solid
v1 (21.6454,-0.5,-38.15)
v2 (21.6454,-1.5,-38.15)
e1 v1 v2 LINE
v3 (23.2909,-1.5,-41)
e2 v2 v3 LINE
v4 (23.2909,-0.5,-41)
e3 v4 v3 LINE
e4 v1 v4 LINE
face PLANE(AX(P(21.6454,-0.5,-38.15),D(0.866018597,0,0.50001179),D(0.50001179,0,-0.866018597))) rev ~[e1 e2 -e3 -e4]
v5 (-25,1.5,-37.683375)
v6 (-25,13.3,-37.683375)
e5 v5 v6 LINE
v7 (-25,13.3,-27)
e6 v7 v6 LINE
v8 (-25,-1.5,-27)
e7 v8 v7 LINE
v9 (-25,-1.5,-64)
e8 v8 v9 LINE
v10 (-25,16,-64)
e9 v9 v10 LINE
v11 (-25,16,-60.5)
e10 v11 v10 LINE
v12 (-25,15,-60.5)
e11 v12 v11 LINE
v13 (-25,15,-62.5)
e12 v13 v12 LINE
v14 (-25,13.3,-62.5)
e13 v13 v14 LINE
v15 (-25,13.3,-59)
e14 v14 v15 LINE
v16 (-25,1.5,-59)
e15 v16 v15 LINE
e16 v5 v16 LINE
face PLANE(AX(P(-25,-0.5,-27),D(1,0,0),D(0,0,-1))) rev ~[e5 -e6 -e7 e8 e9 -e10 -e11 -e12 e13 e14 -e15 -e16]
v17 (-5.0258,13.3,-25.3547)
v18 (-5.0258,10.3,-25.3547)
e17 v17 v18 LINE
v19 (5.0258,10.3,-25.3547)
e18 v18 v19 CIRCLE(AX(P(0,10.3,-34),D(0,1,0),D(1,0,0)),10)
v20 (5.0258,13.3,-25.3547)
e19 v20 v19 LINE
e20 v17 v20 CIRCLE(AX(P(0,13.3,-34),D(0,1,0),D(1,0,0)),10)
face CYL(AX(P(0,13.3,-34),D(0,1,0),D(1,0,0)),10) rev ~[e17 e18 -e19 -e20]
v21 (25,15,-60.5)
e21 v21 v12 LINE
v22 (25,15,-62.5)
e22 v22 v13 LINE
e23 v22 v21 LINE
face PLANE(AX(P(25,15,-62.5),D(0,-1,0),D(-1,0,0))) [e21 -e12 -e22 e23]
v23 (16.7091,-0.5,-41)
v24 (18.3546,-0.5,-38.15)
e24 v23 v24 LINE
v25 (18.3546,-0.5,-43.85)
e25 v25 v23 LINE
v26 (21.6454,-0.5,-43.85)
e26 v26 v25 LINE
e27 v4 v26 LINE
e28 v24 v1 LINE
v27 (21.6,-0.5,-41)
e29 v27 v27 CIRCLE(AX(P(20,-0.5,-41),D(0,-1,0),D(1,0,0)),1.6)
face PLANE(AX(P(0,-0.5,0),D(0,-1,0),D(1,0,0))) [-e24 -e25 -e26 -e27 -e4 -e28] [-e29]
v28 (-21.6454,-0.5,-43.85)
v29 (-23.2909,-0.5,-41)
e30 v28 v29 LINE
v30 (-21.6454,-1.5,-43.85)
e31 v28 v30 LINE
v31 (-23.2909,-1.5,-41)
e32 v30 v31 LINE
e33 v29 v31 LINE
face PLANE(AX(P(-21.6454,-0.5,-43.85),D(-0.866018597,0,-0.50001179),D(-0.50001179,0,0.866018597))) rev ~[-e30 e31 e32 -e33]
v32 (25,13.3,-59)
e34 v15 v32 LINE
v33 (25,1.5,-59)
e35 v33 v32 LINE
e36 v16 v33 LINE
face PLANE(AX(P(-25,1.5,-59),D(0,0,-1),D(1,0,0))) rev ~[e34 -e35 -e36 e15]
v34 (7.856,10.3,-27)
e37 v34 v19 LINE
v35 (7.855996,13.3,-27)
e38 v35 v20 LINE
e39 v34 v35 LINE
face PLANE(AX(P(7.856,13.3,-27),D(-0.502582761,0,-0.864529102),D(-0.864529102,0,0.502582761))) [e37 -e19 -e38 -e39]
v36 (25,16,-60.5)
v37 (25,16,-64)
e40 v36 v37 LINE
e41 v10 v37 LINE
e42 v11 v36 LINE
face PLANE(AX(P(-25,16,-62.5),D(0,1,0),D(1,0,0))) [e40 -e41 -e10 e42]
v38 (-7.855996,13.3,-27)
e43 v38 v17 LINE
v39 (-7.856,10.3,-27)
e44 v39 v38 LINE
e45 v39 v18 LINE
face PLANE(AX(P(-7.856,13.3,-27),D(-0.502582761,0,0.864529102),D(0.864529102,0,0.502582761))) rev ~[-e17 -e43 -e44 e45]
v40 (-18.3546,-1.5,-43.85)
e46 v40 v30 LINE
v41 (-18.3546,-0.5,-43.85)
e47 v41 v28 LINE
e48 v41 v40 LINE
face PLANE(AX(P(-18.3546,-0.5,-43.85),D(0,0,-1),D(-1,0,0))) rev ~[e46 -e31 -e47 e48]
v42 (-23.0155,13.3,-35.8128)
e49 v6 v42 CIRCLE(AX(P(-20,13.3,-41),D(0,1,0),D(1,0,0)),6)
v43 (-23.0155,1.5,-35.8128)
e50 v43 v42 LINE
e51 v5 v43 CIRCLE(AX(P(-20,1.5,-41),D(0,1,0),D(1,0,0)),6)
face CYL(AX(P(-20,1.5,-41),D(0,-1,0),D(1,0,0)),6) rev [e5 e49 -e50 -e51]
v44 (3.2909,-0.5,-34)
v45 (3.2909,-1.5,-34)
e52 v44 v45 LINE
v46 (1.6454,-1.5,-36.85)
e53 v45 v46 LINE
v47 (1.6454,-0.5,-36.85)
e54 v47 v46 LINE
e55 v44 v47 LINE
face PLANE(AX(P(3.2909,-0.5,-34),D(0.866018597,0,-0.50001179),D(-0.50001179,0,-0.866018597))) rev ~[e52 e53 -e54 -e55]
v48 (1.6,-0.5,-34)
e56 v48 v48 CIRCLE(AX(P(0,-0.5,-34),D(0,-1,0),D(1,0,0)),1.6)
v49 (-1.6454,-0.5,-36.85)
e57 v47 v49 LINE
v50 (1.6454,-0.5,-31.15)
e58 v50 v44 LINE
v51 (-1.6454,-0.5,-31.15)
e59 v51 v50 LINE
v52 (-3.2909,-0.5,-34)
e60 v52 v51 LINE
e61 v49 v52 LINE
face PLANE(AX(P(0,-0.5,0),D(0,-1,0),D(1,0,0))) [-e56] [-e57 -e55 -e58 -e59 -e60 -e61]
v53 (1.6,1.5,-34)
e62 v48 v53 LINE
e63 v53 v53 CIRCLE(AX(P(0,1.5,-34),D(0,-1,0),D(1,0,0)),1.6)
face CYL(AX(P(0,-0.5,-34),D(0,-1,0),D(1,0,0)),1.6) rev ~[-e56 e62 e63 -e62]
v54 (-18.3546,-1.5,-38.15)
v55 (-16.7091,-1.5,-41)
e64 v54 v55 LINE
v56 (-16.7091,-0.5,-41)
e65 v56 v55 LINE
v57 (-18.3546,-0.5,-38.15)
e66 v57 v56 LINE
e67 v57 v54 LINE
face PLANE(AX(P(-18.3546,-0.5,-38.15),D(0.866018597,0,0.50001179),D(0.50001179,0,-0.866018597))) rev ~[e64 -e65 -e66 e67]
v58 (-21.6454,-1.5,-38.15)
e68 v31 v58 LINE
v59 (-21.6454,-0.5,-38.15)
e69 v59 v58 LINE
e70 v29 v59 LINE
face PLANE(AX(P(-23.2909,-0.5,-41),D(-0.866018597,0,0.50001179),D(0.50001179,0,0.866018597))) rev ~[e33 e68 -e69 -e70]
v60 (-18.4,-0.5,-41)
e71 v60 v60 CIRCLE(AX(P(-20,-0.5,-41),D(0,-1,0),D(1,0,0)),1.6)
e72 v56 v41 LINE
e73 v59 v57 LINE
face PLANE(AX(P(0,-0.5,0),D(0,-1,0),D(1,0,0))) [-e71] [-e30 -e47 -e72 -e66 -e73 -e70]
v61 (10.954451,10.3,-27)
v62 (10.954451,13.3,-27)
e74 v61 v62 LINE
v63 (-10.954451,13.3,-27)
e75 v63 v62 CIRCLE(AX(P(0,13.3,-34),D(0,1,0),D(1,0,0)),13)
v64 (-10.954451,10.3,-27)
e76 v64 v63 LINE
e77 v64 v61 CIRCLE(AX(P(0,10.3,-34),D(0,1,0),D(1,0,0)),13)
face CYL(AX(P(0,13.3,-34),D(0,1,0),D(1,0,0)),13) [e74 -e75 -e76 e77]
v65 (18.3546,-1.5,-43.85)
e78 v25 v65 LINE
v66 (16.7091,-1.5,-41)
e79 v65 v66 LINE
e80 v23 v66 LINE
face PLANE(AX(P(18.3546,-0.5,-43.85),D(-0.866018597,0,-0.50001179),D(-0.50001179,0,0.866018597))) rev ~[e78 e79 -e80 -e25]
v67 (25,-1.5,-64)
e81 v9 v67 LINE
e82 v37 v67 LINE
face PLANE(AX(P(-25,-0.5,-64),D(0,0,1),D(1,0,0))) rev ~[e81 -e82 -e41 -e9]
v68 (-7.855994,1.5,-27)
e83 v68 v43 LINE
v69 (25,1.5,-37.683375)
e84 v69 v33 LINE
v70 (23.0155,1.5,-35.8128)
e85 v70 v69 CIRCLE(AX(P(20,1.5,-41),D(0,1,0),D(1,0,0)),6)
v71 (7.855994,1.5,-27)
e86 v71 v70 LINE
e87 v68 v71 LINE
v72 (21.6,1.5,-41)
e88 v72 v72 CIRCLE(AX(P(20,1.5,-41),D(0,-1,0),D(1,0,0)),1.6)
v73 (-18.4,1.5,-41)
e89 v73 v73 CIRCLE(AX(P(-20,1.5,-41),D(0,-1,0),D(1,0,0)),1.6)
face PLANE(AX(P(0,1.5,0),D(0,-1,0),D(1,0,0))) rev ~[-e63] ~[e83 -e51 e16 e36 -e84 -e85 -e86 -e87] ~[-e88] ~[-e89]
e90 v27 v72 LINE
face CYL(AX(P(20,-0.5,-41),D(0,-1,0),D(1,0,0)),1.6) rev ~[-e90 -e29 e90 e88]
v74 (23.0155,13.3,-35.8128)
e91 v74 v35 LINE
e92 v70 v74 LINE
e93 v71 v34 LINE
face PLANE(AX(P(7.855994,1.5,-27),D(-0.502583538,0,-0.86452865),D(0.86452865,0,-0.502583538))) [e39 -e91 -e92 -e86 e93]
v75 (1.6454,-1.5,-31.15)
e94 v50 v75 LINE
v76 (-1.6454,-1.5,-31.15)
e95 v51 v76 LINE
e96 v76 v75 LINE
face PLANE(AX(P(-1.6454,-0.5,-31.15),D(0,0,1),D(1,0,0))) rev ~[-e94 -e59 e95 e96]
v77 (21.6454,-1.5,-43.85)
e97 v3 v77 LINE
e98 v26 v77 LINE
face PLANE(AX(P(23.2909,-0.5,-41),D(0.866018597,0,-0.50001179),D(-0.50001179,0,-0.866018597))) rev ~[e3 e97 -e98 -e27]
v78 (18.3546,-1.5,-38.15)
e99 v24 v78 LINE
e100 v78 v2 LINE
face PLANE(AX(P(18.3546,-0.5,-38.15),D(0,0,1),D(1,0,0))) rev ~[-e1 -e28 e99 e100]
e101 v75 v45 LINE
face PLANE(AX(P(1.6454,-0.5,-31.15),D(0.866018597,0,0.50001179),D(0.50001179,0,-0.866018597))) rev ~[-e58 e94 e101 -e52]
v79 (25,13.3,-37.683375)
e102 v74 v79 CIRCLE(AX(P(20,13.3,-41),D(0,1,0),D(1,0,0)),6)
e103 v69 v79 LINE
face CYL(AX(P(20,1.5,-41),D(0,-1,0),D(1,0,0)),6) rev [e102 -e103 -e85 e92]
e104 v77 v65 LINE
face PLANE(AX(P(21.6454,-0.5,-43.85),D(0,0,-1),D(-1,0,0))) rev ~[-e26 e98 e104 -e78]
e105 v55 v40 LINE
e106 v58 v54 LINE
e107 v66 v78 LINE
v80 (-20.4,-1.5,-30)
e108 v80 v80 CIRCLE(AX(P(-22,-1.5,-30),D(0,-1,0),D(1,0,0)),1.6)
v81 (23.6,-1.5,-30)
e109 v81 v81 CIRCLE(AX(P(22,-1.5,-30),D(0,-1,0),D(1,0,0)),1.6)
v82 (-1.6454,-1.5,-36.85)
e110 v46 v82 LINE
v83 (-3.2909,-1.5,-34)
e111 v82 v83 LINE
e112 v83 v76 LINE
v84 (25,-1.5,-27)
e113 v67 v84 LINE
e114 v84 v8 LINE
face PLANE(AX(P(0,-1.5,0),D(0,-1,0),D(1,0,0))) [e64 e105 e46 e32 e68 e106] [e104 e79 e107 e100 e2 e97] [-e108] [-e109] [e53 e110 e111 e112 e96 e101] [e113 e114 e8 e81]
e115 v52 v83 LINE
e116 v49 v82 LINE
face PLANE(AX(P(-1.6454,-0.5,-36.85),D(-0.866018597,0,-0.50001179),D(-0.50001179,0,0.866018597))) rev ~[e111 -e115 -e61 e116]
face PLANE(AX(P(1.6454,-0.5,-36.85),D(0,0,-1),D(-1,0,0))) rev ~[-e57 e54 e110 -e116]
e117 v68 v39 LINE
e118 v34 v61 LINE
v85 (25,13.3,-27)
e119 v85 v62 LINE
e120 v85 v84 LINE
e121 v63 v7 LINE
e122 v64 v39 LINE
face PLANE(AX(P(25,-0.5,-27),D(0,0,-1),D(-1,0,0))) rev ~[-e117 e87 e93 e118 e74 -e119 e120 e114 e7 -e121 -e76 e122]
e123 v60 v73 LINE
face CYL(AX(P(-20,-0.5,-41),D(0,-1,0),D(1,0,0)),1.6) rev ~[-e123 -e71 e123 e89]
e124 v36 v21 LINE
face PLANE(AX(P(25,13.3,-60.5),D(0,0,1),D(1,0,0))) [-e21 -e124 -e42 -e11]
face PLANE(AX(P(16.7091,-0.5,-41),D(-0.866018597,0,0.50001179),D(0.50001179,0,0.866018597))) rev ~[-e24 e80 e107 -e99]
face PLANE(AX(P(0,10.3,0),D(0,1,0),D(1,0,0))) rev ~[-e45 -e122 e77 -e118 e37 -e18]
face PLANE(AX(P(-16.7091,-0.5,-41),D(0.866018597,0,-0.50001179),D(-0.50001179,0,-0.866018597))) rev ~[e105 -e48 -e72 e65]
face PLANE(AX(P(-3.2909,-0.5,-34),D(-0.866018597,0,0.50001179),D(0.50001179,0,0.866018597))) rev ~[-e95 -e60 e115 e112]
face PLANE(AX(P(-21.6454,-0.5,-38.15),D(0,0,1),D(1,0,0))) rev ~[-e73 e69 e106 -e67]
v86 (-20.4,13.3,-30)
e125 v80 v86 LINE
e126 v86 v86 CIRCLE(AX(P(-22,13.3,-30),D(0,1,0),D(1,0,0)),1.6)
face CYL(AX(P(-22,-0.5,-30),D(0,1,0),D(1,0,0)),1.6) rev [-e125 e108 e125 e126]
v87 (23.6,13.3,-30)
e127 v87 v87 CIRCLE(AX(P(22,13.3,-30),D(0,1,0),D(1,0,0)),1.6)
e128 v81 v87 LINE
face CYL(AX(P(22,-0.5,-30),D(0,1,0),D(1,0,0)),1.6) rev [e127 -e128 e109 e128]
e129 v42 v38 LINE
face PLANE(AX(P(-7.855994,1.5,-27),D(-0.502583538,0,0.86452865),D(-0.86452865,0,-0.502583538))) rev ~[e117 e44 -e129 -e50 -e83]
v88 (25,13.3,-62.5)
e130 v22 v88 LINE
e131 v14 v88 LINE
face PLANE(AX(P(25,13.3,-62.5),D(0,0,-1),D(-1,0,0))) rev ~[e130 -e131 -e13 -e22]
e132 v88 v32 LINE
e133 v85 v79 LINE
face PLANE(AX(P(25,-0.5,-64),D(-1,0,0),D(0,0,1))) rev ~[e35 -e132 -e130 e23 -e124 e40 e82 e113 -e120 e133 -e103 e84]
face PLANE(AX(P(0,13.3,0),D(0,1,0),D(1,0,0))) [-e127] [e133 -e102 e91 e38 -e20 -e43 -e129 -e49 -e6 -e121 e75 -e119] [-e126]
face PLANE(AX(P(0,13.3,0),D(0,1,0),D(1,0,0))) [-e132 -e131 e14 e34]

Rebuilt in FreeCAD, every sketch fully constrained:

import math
import FreeCAD as App
import Part
import Sketcher
from FreeCAD import Vector
Q = App.Units.Quantity


def add_polygon(sketch, points):
    """Adds a closed chain of lines whose ends are joined by coincident constraints."""
    first, n = sketch.GeometryCount, len(points)
    for a, b in zip(points, points[1:] + points[:1]):
        sketch.addGeometry(Part.LineSegment(App.Vector(*a, 0), App.Vector(*b, 0)), False)
    for i in range(n):
        sketch.addConstraint(Sketcher.Constraint("Coincident", first + i, 2, first + (i + 1) % n, 1))

doc = App.newDocument("Part")
params = doc.addObject("Spreadsheet::Sheet", "Params")
for row, (alias, value) in enumerate([
    ("sketch1_diameter", "3.2 mm"),
    ("sketch1_width", "60 mm"),
    ("sketch1_length", "109 mm"),
    ("pad1_length", "1.5 mm"),
    ("sketch2_length", "80 mm"),
    ("sketch2_diameter", "3.2 mm"),
    ("sketch2_width", "60 mm"),
    ("sketch2_width2", "5 mm"),
    ("pocket1_length", "1.5 mm"),
    ("sketch3_diameter", "3.2 mm"),
    ("pocket2_length", "1.5 mm"),
    ("sketch4_radius", "6 mm"),
    ("sketch4_width", "5 mm"),
    ("sketch4_width2", "50 mm"),
    ("sketch4_height", "3.5 mm"),
    ("pad2_length", "11.8 mm"),
    ("sketch6_width", "50 mm"),
    ("sketch6_height", "14.5 mm"),
    ("pad3_length", "1.5 mm"),
    ("sketch7_height", "1 mm"),
    ("sketch7_width", "50 mm"),
    ("pad4_length", "2 mm"),
    ("sketch8_radius", "13 mm"),
    ("sketch8_radius2", "10 mm"),
    ("pad5_length", "3 mm"),
    ("sketch9_diameter", "3.2 mm"),
    ("sketch10_diameter", "3.2 mm"),
    ("sketch10_width", "50 mm"),
    ("sketch10_height", "37 mm"),
    ("pad6_length", "2 mm"),
    ("sketch11_diameter", "3.2 mm"),
    ("sketch12_diameter", "3.2 mm"),
    ("sketch12_width", "50 mm"),
    ("sketch12_height", "37 mm"),
    ("pad7_length", "1 mm"),
], start=1):
    params.set(f"A{row}", alias)
    params.set(f"B{row}", "=" + value)
    params.setAlias(f"B{row}", alias)

body = doc.addObject("PartDesign::Body", "Body")
body.AllowCompound = True

sketch1 = body.newObject("Sketcher::SketchObject", "Sketch")
sketch1.AttachmentSupport = (doc.getObject("XZ_Plane"), [""])
sketch1.MapMode = "FlatFace"
add_polygon(sketch1, [(-63.4115, -75.2931), (-48.7058, -49.822), (-35.5295, -27), (35.529473, -27.000016), (48.7058, -49.822), (63.4115, -75.2931), (84.499973, -87.468585), (30, -181.8653), (-30, -181.8653), (-84.5, -87.4686)])
sketch1.addGeometry(Part.Circle(Vector(-30, -32.75, 0), Vector(0, 0, 1), 1.6), False)
sketch1.addGeometry(Part.Circle(Vector(30, -32.75, 0), Vector(0, 0, 1), 1.6), False)
sketch1.addConstraint([
    Sketcher.Constraint("Horizontal", 2),
    Sketcher.Constraint("Horizontal", 7),
    Sketcher.Constraint("Equal", 10, 11),
    Sketcher.Constraint("Symmetric", 10, 3, 11, 3, -2),
    Sketcher.Constraint("Symmetric", 0, 2, 3, 2, -2),
    Sketcher.Constraint("Symmetric", 5, 2, 8, 2, -2),
    Sketcher.Constraint("Symmetric", 4, 2, 9, 2, -2),
    Sketcher.Constraint("Parallel", 0, 1),
    Sketcher.Constraint("Parallel", 3, 4),
    Sketcher.Constraint("Perpendicular", 1, 5),
    Sketcher.Constraint("Perpendicular", 5, 6),
    Sketcher.Constraint("Parallel", 4, 8),
    Sketcher.Constraint("Vertical", 11, 3, 6, 2),
    Sketcher.Constraint("Diameter", 10, 3.2),
    Sketcher.Constraint("DistanceX", 7, 2, 7, 1, 60.0),
    Sketcher.Constraint("Angle", 0, Q("60 deg")),
    Sketcher.Constraint("DistanceY", 1, 2, -1, 1, 27.0),
    Sketcher.Constraint("DistanceY", 10, 3, -1, 1, 32.75),
    Sketcher.Constraint("Distance", 6, 109.0),
    Sketcher.Constraint("DistanceX", 2, 1, 2, 2, 71.059),
    Sketcher.Constraint("Distance", 5, 24.351),
    Sketcher.Constraint("DistanceY", 0, 2, -1, 1, 49.822),
])
sketch1.setExpression("Constraints[23]", "Params.sketch1_diameter")
sketch1.setExpression("Constraints[24]", "Params.sketch1_width")
sketch1.setExpression("Constraints[28]", "Params.sketch1_length")
pad1 = body.newObject("PartDesign::Pad", "Pad")
pad1.Profile = sketch1
pad1.setExpression("Length", "Params.pad1_length")
pad1.Reversed = True

sketch2 = body.newObject("Sketcher::SketchObject", "Sketch001")
sketch2.AttachmentSupport = (doc.getObject("XZ_Plane"), [""])
sketch2.MapMode = "FlatFace"
sketch2.AttachmentOffset = App.Placement(Vector(0, 0, -1.5), App.Rotation())
sketch2.addGeometry(Part.Circle(Vector(30, -67.8013, 0), Vector(0, 0, 1), 1.6), False)
sketch2.addGeometry(Part.Circle(Vector(45, -67.8013, 0), Vector(0, 0, 1), 1.6), False)
add_polygon(sketch2, [(30, -181.8653), (-30, -181.8653), (-70, -112.5833), (-30, -89.4893), (-30, -73.1025), (-25, -73.1025), (-25, -62.5), (25, -62.5), (25, -73.1025), (30, -73.1025), (30, -89.4893), (70.000008, -112.583305)])
sketch2.addGeometry(Part.Circle(Vector(-30, -67.8013, 0), Vector(0, 0, 1), 1.6), False)
sketch2.addGeometry(Part.Circle(Vector(-45, -67.8013, 0), Vector(0, 0, 1), 1.6), False)
sketch2.addConstraint([
    Sketcher.Constraint("Horizontal", 2),
    Sketcher.Constraint("Vertical", 5),
    Sketcher.Constraint("Horizontal", 6),
    Sketcher.Constraint("Vertical", 7),
    Sketcher.Constraint("Horizontal", 8),
    Sketcher.Constraint("Vertical", 9),
    Sketcher.Constraint("Horizontal", 10),
    Sketcher.Constraint("Vertical", 11),
    Sketcher.Constraint("Equal", 0, 1),
    Sketcher.Constraint("Equal", 1, 14),
    Sketcher.Constraint("Equal", 14, 15),
    Sketcher.Constraint("Symmetric", 0, 3, 14, 3, -2),
    Sketcher.Constraint("Symmetric", 1, 3, 15, 3, -2),
    Sketcher.Constraint("Symmetric", 6, 2, 9, 2, -2),
    Sketcher.Constraint("Symmetric", 4, 2, 11, 2, -2),
    Sketcher.Constraint("Symmetric", 3, 2, 12, 2, -2),
    Sketcher.Constraint("Perpendicular", 3, 4),
    Sketcher.Constraint("Perpendicular", 12, 13),
    Sketcher.Constraint("Horizontal", 0, 3, 1, 3),
    Sketcher.Constraint("Vertical", 14, 3, 2, 2),
    Sketcher.Constraint("Vertical", 2, 2, 4, 2),
    Sketcher.Constraint("Distance", 3, 80.0),
    Sketcher.Constraint("Diameter", 0, 3.2),
    Sketcher.Constraint("DistanceX", 2, 2, 2, 1, 60.0),
    Sketcher.Constraint("DistanceX", 6, 1, 6, 2, 5.0),
    Sketcher.Constraint("Angle", 3, Q("120 deg")),
    Sketcher.Constraint("DistanceX", -1, 1, 1, 3, 45.0),
    Sketcher.Constraint("DistanceY", 7, 2, -1, 1, 62.5),
    Sketcher.Constraint("DistanceY", 5, 1, 5, 2, 16.3868),
    Sketcher.Constraint("DistanceY", 7, 1, 7, 2, 10.6025),
    Sketcher.Constraint("DistanceY", 2, 2, 14, 3, 114.064),
])
sketch2.setExpression("Constraints[33]", "Params.sketch2_length")
sketch2.setExpression("Constraints[34]", "Params.sketch2_diameter")
sketch2.setExpression("Constraints[35]", "Params.sketch2_width")
sketch2.setExpression("Constraints[36]", "Params.sketch2_width2")
pocket1 = body.newObject("PartDesign::Pocket", "Pocket")
pocket1.Profile = sketch2
pocket1.setExpression("Length", "Params.pocket1_length")
pocket1.Reversed = True

sketch3 = body.newObject("Sketcher::SketchObject", "Sketch002")
sketch3.AttachmentSupport = (doc.getObject("XZ_Plane"), [""])
sketch3.MapMode = "FlatFace"
sketch3.AttachmentOffset = App.Placement(Vector(0, 0, -1.5), App.Rotation())
sketch3.addGeometry([
    Part.Circle(Vector(0, -34, 0), Vector(0, 0, 1), 1.6),
    Part.Circle(Vector(-20, -41, 0), Vector(0, 0, 1), 1.6),
    Part.Circle(Vector(20, -41, 0), Vector(0, 0, 1), 1.6),
], False)
sketch3.addConstraint([
    Sketcher.Constraint("Equal", 0, 1),
    Sketcher.Constraint("Equal", 1, 2),
    Sketcher.Constraint("Symmetric", 1, 3, 2, 3, -2),
    Sketcher.Constraint("PointOnObject", 0, 3, -2),
    Sketcher.Constraint("Diameter", 0, 3.2),
    Sketcher.Constraint("DistanceY", 1, 3, 0, 3, 7.0),
    Sketcher.Constraint("DistanceX", 1, 3, 2, 3, 40.0),
    Sketcher.Constraint("DistanceY", 0, 3, -1, 1, 34.0),
])
sketch3.setExpression("Constraints[4]", "Params.sketch3_diameter")
pocket2 = body.newObject("PartDesign::Pocket", "Pocket001")
pocket2.Profile = sketch3
pocket2.setExpression("Length", "Params.pocket2_length")
pocket2.Reversed = True

sketch4 = body.newObject("Sketcher::SketchObject", "Sketch003")
sketch4.AttachmentSupport = (doc.getObject("XZ_Plane"), [""])
sketch4.MapMode = "FlatFace"
sketch4.AttachmentOffset = App.Placement(Vector(0, 0, -1.5), App.Rotation())
sketch4.addGeometry(Part.ArcOfCircle(Part.Circle(Vector(-20, -41, 0), Vector(0, 0, 1), 6), math.radians(120.170928), math.radians(146.44269)), False)
sketch4.addGeometry(Part.LineSegment(Vector(-25, -37.683375, 0), Vector(-25, -27, 0)), False)
sketch4.addGeometry(Part.LineSegment(Vector(-25, -27, 0), Vector(-7.855994, -27, 0)), False)
sketch4.addGeometry(Part.LineSegment(Vector(-7.855994, -27, 0), Vector(-23.0155, -35.8128, 0)), False)
sketch4.addGeometry(Part.ArcOfCircle(Part.Circle(Vector(20, -41, 0), Vector(0, 0, 1), 6), math.radians(33.55731), math.radians(59.829072)), False)
sketch4.addGeometry(Part.LineSegment(Vector(23.0155, -35.8128, 0), Vector(7.855994, -27, 0)), False)
sketch4.addGeometry(Part.LineSegment(Vector(7.855994, -27, 0), Vector(25, -27, 0)), False)
sketch4.addGeometry(Part.LineSegment(Vector(25, -27, 0), Vector(25, -37.683375, 0)), False)
add_polygon(sketch4, [(-25, -62.5), (-25, -59), (25, -59), (25, -62.5)])
sketch4.addConstraint([
    Sketcher.Constraint("Coincident", 0, 2, 1, 1),
    Sketcher.Constraint("Coincident", 1, 2, 2, 1),
    Sketcher.Constraint("Coincident", 2, 2, 3, 1),
    Sketcher.Constraint("Tangent", 3, 2, 0, 1),
    Sketcher.Constraint("Tangent", 4, 2, 5, 1),
    Sketcher.Constraint("Coincident", 5, 2, 6, 1),
    Sketcher.Constraint("Coincident", 6, 2, 7, 1),
    Sketcher.Constraint("Coincident", 7, 2, 4, 1),
    Sketcher.Constraint("Vertical", 1),
    Sketcher.Constraint("Horizontal", 2),
    Sketcher.Constraint("Horizontal", 6),
    Sketcher.Constraint("Vertical", 7),
    Sketcher.Constraint("Vertical", 8),
    Sketcher.Constraint("Horizontal", 9),
    Sketcher.Constraint("Vertical", 10),
    Sketcher.Constraint("Horizontal", 11),
    Sketcher.Constraint("Equal", 0, 4),
    Sketcher.Constraint("Symmetric", 0, 3, 4, 3, -2),
    Sketcher.Constraint("Symmetric", 2, 2, 5, 2, -2),
    Sketcher.Constraint("Horizontal", 0, 2, 7, 2),
    Sketcher.Constraint("Vertical", 1, 2, 8, 2),
    Sketcher.Constraint("Vertical", 7, 2, 9, 2),
    Sketcher.Constraint("Radius", 0, 6.0),
    Sketcher.Constraint("DistanceX", 0, 2, 0, 3, 5.0),
    Sketcher.Constraint("DistanceX", 9, 1, 9, 2, 50.0),
    Sketcher.Constraint("DistanceY", 8, 1, 8, 2, 3.5),
    Sketcher.Constraint("DistanceY", 0, 3, -1, 1, 41.0),
    Sketcher.Constraint("DistanceY", 1, 2, -1, 1, 27.0),
    Sketcher.Constraint("DistanceY", 8, 2, -1, 1, 59.0),
    Sketcher.Constraint("Angle", 3, Q("-149.829 deg")),
])
sketch4.setExpression("Constraints[26]", "Params.sketch4_radius")
sketch4.setExpression("Constraints[27]", "Params.sketch4_width")
sketch4.setExpression("Constraints[28]", "Params.sketch4_width2")
sketch4.setExpression("Constraints[29]", "Params.sketch4_height")
pad2 = body.newObject("PartDesign::Pad", "Pad001")
pad2.Profile = sketch4
pad2.setExpression("Length", "Params.pad2_length")
pad2.Reversed = True

sketch5 = body.newObject("Sketcher::SketchObject", "Sketch004")
sketch5.AttachmentSupport = (doc.getObject("XZ_Plane"), [""])
sketch5.MapMode = "FlatFace"
sketch5.AttachmentOffset = App.Placement(Vector(0, 0, -1.5), App.Rotation())
add_polygon(sketch5, [(313.8631, -180.8905), (-176.5784, -180.8905), (-176.5784, 72.7571), (313.8631, 72.7571)])
sketch5.addConstraint([
    Sketcher.Constraint("Horizontal", 0),
    Sketcher.Constraint("Vertical", 1),
    Sketcher.Constraint("Horizontal", 2),
    Sketcher.Constraint("Vertical", 3),
    Sketcher.Constraint("DistanceX", 0, 2, 0, 1, 490.4415),
    Sketcher.Constraint("DistanceY", 1, 1, 1, 2, 253.6476),
    Sketcher.Constraint("DistanceY", -1, 1, 1, 2, 72.757),
    Sketcher.Constraint("DistanceX", -1, 1, 2, 2, 313.863),
])
pocket3 = body.newObject("PartDesign::Pocket", "Pocket002")
pocket3.Profile = sketch5
pocket3.Type = "ThroughAll"
pocket3.Reversed = True

sketch6 = body.newObject("Sketcher::SketchObject", "Sketch005")
sketch6.AttachmentSupport = (doc.getObject("XY_Plane"), [""])
sketch6.MapMode = "FlatFace"
sketch6.AttachmentOffset = App.Placement(Vector(0, 0, -62.5), App.Rotation())
add_polygon(sketch6, [(25, 1.5), (-25, 1.5), (-25, 16), (25, 16)])
sketch6.addConstraint([
    Sketcher.Constraint("Horizontal", 0),
    Sketcher.Constraint("Vertical", 1),
    Sketcher.Constraint("Horizontal", 2),
    Sketcher.Constraint("Vertical", 3),
    Sketcher.Constraint("DistanceX", 0, 2, 0, 1, 50.0),
    Sketcher.Constraint("DistanceY", 1, 1, 1, 2, 14.5),
    Sketcher.Constraint("DistanceX", 0, 2, -1, 1, 25.0),
    Sketcher.Constraint("DistanceY", -1, 1, 1, 2, 16.0),
])
sketch6.setExpression("Constraints[8]", "Params.sketch6_width")
sketch6.setExpression("Constraints[9]", "Params.sketch6_height")
pad3 = body.newObject("PartDesign::Pad", "Pad002")
pad3.Profile = sketch6
pad3.setExpression("Length", "Params.pad3_length")
pad3.Reversed = True

sketch7 = body.newObject("Sketcher::SketchObject", "Sketch006")
sketch7.AttachmentSupport = (doc.getObject("XY_Plane"), [""])
sketch7.MapMode = "FlatFace"
sketch7.AttachmentOffset = App.Placement(Vector(0, 0, -62.5), App.Rotation())
add_polygon(sketch7, [(-25, 16), (-25, 15), (25, 15), (25, 16)])
sketch7.addConstraint([
    Sketcher.Constraint("Vertical", 0),
    Sketcher.Constraint("Horizontal", 1),
    Sketcher.Constraint("Vertical", 2),
    Sketcher.Constraint("Horizontal", 3),
    Sketcher.Constraint("DistanceY", 0, 2, 0, 1, 1.0),
    Sketcher.Constraint("DistanceX", 1, 1, 1, 2, 50.0),
    Sketcher.Constraint("DistanceX", 0, 2, -1, 1, 25.0),
    Sketcher.Constraint("DistanceY", -1, 1, 0, 2, 15.0),
])
sketch7.setExpression("Constraints[8]", "Params.sketch7_height")
sketch7.setExpression("Constraints[9]", "Params.sketch7_width")
pad4 = body.newObject("PartDesign::Pad", "Pad003")
pad4.Profile = sketch7
pad4.setExpression("Length", "Params.pad4_length")

sketch8 = body.newObject("Sketcher::SketchObject", "Sketch007")
sketch8.AttachmentSupport = (doc.getObject("XZ_Plane"), [""])
sketch8.MapMode = "FlatFace"
sketch8.AttachmentOffset = App.Placement(Vector(0, 0, -13.3), App.Rotation())
sketch8.addGeometry([
    Part.LineSegment(Vector(-5.0258, -25.3547, 0), Vector(-7.856, -27, 0)),
    Part.LineSegment(Vector(-7.856, -27, 0), Vector(-12.207152, -29.529492, 0)),
    Part.ArcOfCircle(Part.Circle(Vector(0, -34, 0), Vector(0, 0, 1), 13), math.radians(20.113762), math.radians(159.886238)),
    Part.LineSegment(Vector(12.207152, -29.529492, 0), Vector(7.856, -27, 0)),
    Part.LineSegment(Vector(7.856, -27, 0), Vector(5.0258, -25.3547, 0)),
    Part.ArcOfCircle(Part.Circle(Vector(0, -34, 0), Vector(0, 0, 1), 10), math.radians(59.829141), math.radians(120.170859)),
], False)
sketch8.addConstraint([
    Sketcher.Constraint("Coincident", 0, 2, 1, 1),
    Sketcher.Constraint("Coincident", 1, 2, 2, 2),
    Sketcher.Constraint("Coincident", 2, 1, 3, 1),
    Sketcher.Constraint("Coincident", 3, 2, 4, 1),
    Sketcher.Constraint("Tangent", 4, 2, 5, 1),
    Sketcher.Constraint("Tangent", 5, 2, 0, 1),
    Sketcher.Constraint("Coincident", 5, 3, 2, 3),
    Sketcher.Constraint("Symmetric", 1, 2, 2, 1, -2),
    Sketcher.Constraint("Symmetric", 0, 2, 3, 2, -2),
    Sketcher.Constraint("Parallel", 0, 1),
    Sketcher.Constraint("Radius", 2, 13.0),
    Sketcher.Constraint("Radius", 5, 10.0),
    Sketcher.Constraint("DistanceY", 2, 3, -1, 1, 34.0),
    Sketcher.Constraint("DistanceY", 0, 2, -1, 1, 27.0),
    Sketcher.Constraint("Angle", 0, Q("-149.829 deg")),
])
sketch8.setExpression("Constraints[10]", "Params.sketch8_radius")
sketch8.setExpression("Constraints[11]", "Params.sketch8_radius2")
pad5 = body.newObject("PartDesign::Pad", "Pad004")
pad5.Profile = sketch8
pad5.setExpression("Length", "Params.pad5_length")

sketch9 = body.newObject("Sketcher::SketchObject", "Sketch008")
sketch9.AttachmentSupport = (doc.getObject("XZ_Plane"), [""])
sketch9.MapMode = "FlatFace"
sketch9.AttachmentOffset = App.Placement(Vector(0, 0, -13.3), App.Rotation())
sketch9.addGeometry([
    Part.Circle(Vector(-22, -30, 0), Vector(0, 0, 1), 1.6),
    Part.Circle(Vector(22, -30, 0), Vector(0, 0, 1), 1.6),
], False)
sketch9.addConstraint([
    Sketcher.Constraint("Equal", 0, 1),
    Sketcher.Constraint("Symmetric", 0, 3, 1, 3, -2),
    Sketcher.Constraint("Diameter", 0, 3.2),
    Sketcher.Constraint("DistanceX", 0, 3, -1, 1, 22.0),
    Sketcher.Constraint("DistanceY", 0, 3, -1, 1, 30.0),
])
sketch9.setExpression("Constraints[2]", "Params.sketch9_diameter")
pocket4 = body.newObject("PartDesign::Pocket", "Pocket003")
pocket4.Profile = sketch9
pocket4.Type = "ThroughAll"
pocket4.Reversed = True

sketch10 = body.newObject("Sketcher::SketchObject", "Sketch009")
sketch10.AttachmentSupport = (doc.getObject("XZ_Plane"), [""])
sketch10.MapMode = "FlatFace"
sketch10.AttachmentOffset = App.Placement(Vector(0, 0, -1.5), App.Rotation())
add_polygon(sketch10, [(-25, -27), (-25, -64), (25, -64), (25, -27)])
sketch10.addGeometry(Part.Circle(Vector(-22, -30, 0), Vector(0, 0, 1), 1.6), False)
sketch10.addGeometry(Part.Circle(Vector(22, -30, 0), Vector(0, 0, 1), 1.6), False)
sketch10.addConstraint([
    Sketcher.Constraint("Vertical", 0),
    Sketcher.Constraint("Horizontal", 1),
    Sketcher.Constraint("Vertical", 2),
    Sketcher.Constraint("Horizontal", 3),
    Sketcher.Constraint("Equal", 4, 5),
    Sketcher.Constraint("Symmetric", 4, 3, 5, 3, -2),
    Sketcher.Constraint("Diameter", 4, 3.2),
    Sketcher.Constraint("DistanceX", 1, 1, 1, 2, 50.0),
    Sketcher.Constraint("DistanceY", 0, 2, 0, 1, 37.0),
    Sketcher.Constraint("DistanceX", 4, 3, -1, 1, 22.0),
    Sketcher.Constraint("DistanceY", 4, 3, -1, 1, 30.0),
    Sketcher.Constraint("DistanceX", 0, 2, -1, 1, 25.0),
    Sketcher.Constraint("DistanceY", 0, 2, -1, 1, 64.0),
])
sketch10.setExpression("Constraints[10]", "Params.sketch10_diameter")
sketch10.setExpression("Constraints[11]", "Params.sketch10_width")
sketch10.setExpression("Constraints[12]", "Params.sketch10_height")
pad6 = body.newObject("PartDesign::Pad", "Pad005")
pad6.Profile = sketch10
pad6.setExpression("Length", "Params.pad6_length")

sketch11 = body.newObject("Sketcher::SketchObject", "Sketch010")
sketch11.AttachmentSupport = (doc.getObject("XZ_Plane"), [""])
sketch11.MapMode = "FlatFace"
sketch11.AttachmentOffset = App.Placement(Vector(0, 0, 0.5), App.Rotation())
sketch11.addGeometry([
    Part.Circle(Vector(-20, -41, 0), Vector(0, 0, 1), 1.6),
    Part.Circle(Vector(0, -34, 0), Vector(0, 0, 1), 1.6),
    Part.Circle(Vector(20, -41, 0), Vector(0, 0, 1), 1.6),
], False)
sketch11.addConstraint([
    Sketcher.Constraint("Equal", 0, 1),
    Sketcher.Constraint("Equal", 1, 2),
    Sketcher.Constraint("Symmetric", 0, 3, 2, 3, -2),
    Sketcher.Constraint("PointOnObject", 1, 3, -2),
    Sketcher.Constraint("Diameter", 0, 3.2),
    Sketcher.Constraint("DistanceX", 0, 3, -1, 1, 20.0),
    Sketcher.Constraint("DistanceY", 0, 3, -1, 1, 41.0),
    Sketcher.Constraint("DistanceY", 1, 3, -1, 1, 34.0),
])
sketch11.setExpression("Constraints[4]", "Params.sketch11_diameter")
pocket5 = body.newObject("PartDesign::Pocket", "Pocket004")
pocket5.Profile = sketch11
pocket5.Type = "ThroughAll"

sketch12 = body.newObject("Sketcher::SketchObject", "Sketch011")
sketch12.AttachmentSupport = (doc.getObject("XZ_Plane"), [""])
sketch12.MapMode = "FlatFace"
sketch12.AttachmentOffset = App.Placement(Vector(0, 0, 0.5), App.Rotation())
add_polygon(sketch12, [(-25, -64), (25, -64), (25, -27), (-25, -27)])
add_polygon(sketch12, [(-18.3546, -38.15), (-16.7091, -41), (-18.3546, -43.85), (-21.6454, -43.85), (-23.2909, -41), (-21.6454, -38.15)])
sketch12.addGeometry(Part.Circle(Vector(-22, -30, 0), Vector(0, 0, 1), 1.6), False)
add_polygon(sketch12, [(23.2909, -41), (21.6454, -43.85), (18.3546, -43.85), (16.7091, -41), (18.3546, -38.15), (21.6454, -38.15)])
add_polygon(sketch12, [(1.6454, -31.15), (3.2909, -34), (1.6454, -36.85), (-1.6454, -36.85), (-3.2909, -34), (-1.6454, -31.15)])
sketch12.addGeometry(Part.Circle(Vector(22, -30, 0), Vector(0, 0, 1), 1.6), False)
sketch12.addConstraint([
    Sketcher.Constraint("Horizontal", 0),
    Sketcher.Constraint("Vertical", 1),
    Sketcher.Constraint("Horizontal", 2),
    Sketcher.Constraint("Vertical", 3),
    Sketcher.Constraint("Horizontal", 6),
    Sketcher.Constraint("Horizontal", 9),
    Sketcher.Constraint("Horizontal", 12),
    Sketcher.Constraint("Horizontal", 15),
    Sketcher.Constraint("Horizontal", 19),
    Sketcher.Constraint("Horizontal", 22),
    Sketcher.Constraint("Equal", 10, 23),
    Sketcher.Constraint("Symmetric", 10, 3, 23, 3, -2),
    Sketcher.Constraint("Symmetric", 6, 2, 11, 2, -2),
    Sketcher.Constraint("Symmetric", 4, 2, 13, 2, -2),
    Sketcher.Constraint("Symmetric", 9, 2, 14, 2, -2),
    Sketcher.Constraint("Symmetric", 7, 2, 16, 2, -2),
    Sketcher.Constraint("Symmetric", 17, 2, 20, 2, -2),
    Sketcher.Constraint("Parallel", 4, 7),
    Sketcher.Constraint("Parallel", 5, 8),
    Sketcher.Constraint("Parallel", 8, 11),
    Sketcher.Constraint("Parallel", 7, 13),
    Sketcher.Constraint("Parallel", 13, 16),
    Sketcher.Constraint("Parallel", 16, 17),
    Sketcher.Constraint("Parallel", 14, 18),
    Sketcher.Constraint("Parallel", 17, 20),
    Sketcher.Constraint("Parallel", 18, 21),
    Sketcher.Constraint("Horizontal", 4, 2, 7, 2),
    Sketcher.Constraint("Vertical", 6, 2, 8, 2),
    Sketcher.Constraint("Vertical", 19, 2, 21, 2),
    Sketcher.Constraint("Equal", 15, 19),
    Sketcher.Constraint("Equal", 16, 17),
    Sketcher.Constraint("Diameter", 10, 3.2),
    Sketcher.Constraint("DistanceY", 6, 2, 8, 2, 5.7),
    Sketcher.Constraint("DistanceX", 0, 1, 0, 2, 50.0),
    Sketcher.Constraint("DistanceY", 1, 1, 1, 2, 37.0),
    Sketcher.Constraint("Angle", 4, Q("-59.9992 deg")),
    Sketcher.Constraint("DistanceX", 10, 3, -1, 1, 22.0),
    Sketcher.Constraint("DistanceY", 10, 3, -1, 1, 30.0),
    Sketcher.Constraint("DistanceX", -1, 1, 0, 2, 25.0),
    Sketcher.Constraint("DistanceY", 0, 2, -1, 1, 64.0),
    Sketcher.Constraint("DistanceY", 4, 2, -1, 1, 41.0),
    Sketcher.Constraint("DistanceY", 17, 2, -1, 1, 34.0),
    Sketcher.Constraint("DistanceX", 5, 2, 11, 2, 40.0),
    Sketcher.Constraint("DistanceX", 6, 2, 6, 1, 3.2908),
])
sketch12.setExpression("Constraints[53]", "Params.sketch12_diameter")
sketch12.setExpression("Constraints[55]", "Params.sketch12_width")
sketch12.setExpression("Constraints[56]", "Params.sketch12_height")
pad7 = body.newObject("PartDesign::Pad", "Pad006")
pad7.Profile = sketch12
pad7.setExpression("Length", "Params.pad7_length")

doc.recompute()
